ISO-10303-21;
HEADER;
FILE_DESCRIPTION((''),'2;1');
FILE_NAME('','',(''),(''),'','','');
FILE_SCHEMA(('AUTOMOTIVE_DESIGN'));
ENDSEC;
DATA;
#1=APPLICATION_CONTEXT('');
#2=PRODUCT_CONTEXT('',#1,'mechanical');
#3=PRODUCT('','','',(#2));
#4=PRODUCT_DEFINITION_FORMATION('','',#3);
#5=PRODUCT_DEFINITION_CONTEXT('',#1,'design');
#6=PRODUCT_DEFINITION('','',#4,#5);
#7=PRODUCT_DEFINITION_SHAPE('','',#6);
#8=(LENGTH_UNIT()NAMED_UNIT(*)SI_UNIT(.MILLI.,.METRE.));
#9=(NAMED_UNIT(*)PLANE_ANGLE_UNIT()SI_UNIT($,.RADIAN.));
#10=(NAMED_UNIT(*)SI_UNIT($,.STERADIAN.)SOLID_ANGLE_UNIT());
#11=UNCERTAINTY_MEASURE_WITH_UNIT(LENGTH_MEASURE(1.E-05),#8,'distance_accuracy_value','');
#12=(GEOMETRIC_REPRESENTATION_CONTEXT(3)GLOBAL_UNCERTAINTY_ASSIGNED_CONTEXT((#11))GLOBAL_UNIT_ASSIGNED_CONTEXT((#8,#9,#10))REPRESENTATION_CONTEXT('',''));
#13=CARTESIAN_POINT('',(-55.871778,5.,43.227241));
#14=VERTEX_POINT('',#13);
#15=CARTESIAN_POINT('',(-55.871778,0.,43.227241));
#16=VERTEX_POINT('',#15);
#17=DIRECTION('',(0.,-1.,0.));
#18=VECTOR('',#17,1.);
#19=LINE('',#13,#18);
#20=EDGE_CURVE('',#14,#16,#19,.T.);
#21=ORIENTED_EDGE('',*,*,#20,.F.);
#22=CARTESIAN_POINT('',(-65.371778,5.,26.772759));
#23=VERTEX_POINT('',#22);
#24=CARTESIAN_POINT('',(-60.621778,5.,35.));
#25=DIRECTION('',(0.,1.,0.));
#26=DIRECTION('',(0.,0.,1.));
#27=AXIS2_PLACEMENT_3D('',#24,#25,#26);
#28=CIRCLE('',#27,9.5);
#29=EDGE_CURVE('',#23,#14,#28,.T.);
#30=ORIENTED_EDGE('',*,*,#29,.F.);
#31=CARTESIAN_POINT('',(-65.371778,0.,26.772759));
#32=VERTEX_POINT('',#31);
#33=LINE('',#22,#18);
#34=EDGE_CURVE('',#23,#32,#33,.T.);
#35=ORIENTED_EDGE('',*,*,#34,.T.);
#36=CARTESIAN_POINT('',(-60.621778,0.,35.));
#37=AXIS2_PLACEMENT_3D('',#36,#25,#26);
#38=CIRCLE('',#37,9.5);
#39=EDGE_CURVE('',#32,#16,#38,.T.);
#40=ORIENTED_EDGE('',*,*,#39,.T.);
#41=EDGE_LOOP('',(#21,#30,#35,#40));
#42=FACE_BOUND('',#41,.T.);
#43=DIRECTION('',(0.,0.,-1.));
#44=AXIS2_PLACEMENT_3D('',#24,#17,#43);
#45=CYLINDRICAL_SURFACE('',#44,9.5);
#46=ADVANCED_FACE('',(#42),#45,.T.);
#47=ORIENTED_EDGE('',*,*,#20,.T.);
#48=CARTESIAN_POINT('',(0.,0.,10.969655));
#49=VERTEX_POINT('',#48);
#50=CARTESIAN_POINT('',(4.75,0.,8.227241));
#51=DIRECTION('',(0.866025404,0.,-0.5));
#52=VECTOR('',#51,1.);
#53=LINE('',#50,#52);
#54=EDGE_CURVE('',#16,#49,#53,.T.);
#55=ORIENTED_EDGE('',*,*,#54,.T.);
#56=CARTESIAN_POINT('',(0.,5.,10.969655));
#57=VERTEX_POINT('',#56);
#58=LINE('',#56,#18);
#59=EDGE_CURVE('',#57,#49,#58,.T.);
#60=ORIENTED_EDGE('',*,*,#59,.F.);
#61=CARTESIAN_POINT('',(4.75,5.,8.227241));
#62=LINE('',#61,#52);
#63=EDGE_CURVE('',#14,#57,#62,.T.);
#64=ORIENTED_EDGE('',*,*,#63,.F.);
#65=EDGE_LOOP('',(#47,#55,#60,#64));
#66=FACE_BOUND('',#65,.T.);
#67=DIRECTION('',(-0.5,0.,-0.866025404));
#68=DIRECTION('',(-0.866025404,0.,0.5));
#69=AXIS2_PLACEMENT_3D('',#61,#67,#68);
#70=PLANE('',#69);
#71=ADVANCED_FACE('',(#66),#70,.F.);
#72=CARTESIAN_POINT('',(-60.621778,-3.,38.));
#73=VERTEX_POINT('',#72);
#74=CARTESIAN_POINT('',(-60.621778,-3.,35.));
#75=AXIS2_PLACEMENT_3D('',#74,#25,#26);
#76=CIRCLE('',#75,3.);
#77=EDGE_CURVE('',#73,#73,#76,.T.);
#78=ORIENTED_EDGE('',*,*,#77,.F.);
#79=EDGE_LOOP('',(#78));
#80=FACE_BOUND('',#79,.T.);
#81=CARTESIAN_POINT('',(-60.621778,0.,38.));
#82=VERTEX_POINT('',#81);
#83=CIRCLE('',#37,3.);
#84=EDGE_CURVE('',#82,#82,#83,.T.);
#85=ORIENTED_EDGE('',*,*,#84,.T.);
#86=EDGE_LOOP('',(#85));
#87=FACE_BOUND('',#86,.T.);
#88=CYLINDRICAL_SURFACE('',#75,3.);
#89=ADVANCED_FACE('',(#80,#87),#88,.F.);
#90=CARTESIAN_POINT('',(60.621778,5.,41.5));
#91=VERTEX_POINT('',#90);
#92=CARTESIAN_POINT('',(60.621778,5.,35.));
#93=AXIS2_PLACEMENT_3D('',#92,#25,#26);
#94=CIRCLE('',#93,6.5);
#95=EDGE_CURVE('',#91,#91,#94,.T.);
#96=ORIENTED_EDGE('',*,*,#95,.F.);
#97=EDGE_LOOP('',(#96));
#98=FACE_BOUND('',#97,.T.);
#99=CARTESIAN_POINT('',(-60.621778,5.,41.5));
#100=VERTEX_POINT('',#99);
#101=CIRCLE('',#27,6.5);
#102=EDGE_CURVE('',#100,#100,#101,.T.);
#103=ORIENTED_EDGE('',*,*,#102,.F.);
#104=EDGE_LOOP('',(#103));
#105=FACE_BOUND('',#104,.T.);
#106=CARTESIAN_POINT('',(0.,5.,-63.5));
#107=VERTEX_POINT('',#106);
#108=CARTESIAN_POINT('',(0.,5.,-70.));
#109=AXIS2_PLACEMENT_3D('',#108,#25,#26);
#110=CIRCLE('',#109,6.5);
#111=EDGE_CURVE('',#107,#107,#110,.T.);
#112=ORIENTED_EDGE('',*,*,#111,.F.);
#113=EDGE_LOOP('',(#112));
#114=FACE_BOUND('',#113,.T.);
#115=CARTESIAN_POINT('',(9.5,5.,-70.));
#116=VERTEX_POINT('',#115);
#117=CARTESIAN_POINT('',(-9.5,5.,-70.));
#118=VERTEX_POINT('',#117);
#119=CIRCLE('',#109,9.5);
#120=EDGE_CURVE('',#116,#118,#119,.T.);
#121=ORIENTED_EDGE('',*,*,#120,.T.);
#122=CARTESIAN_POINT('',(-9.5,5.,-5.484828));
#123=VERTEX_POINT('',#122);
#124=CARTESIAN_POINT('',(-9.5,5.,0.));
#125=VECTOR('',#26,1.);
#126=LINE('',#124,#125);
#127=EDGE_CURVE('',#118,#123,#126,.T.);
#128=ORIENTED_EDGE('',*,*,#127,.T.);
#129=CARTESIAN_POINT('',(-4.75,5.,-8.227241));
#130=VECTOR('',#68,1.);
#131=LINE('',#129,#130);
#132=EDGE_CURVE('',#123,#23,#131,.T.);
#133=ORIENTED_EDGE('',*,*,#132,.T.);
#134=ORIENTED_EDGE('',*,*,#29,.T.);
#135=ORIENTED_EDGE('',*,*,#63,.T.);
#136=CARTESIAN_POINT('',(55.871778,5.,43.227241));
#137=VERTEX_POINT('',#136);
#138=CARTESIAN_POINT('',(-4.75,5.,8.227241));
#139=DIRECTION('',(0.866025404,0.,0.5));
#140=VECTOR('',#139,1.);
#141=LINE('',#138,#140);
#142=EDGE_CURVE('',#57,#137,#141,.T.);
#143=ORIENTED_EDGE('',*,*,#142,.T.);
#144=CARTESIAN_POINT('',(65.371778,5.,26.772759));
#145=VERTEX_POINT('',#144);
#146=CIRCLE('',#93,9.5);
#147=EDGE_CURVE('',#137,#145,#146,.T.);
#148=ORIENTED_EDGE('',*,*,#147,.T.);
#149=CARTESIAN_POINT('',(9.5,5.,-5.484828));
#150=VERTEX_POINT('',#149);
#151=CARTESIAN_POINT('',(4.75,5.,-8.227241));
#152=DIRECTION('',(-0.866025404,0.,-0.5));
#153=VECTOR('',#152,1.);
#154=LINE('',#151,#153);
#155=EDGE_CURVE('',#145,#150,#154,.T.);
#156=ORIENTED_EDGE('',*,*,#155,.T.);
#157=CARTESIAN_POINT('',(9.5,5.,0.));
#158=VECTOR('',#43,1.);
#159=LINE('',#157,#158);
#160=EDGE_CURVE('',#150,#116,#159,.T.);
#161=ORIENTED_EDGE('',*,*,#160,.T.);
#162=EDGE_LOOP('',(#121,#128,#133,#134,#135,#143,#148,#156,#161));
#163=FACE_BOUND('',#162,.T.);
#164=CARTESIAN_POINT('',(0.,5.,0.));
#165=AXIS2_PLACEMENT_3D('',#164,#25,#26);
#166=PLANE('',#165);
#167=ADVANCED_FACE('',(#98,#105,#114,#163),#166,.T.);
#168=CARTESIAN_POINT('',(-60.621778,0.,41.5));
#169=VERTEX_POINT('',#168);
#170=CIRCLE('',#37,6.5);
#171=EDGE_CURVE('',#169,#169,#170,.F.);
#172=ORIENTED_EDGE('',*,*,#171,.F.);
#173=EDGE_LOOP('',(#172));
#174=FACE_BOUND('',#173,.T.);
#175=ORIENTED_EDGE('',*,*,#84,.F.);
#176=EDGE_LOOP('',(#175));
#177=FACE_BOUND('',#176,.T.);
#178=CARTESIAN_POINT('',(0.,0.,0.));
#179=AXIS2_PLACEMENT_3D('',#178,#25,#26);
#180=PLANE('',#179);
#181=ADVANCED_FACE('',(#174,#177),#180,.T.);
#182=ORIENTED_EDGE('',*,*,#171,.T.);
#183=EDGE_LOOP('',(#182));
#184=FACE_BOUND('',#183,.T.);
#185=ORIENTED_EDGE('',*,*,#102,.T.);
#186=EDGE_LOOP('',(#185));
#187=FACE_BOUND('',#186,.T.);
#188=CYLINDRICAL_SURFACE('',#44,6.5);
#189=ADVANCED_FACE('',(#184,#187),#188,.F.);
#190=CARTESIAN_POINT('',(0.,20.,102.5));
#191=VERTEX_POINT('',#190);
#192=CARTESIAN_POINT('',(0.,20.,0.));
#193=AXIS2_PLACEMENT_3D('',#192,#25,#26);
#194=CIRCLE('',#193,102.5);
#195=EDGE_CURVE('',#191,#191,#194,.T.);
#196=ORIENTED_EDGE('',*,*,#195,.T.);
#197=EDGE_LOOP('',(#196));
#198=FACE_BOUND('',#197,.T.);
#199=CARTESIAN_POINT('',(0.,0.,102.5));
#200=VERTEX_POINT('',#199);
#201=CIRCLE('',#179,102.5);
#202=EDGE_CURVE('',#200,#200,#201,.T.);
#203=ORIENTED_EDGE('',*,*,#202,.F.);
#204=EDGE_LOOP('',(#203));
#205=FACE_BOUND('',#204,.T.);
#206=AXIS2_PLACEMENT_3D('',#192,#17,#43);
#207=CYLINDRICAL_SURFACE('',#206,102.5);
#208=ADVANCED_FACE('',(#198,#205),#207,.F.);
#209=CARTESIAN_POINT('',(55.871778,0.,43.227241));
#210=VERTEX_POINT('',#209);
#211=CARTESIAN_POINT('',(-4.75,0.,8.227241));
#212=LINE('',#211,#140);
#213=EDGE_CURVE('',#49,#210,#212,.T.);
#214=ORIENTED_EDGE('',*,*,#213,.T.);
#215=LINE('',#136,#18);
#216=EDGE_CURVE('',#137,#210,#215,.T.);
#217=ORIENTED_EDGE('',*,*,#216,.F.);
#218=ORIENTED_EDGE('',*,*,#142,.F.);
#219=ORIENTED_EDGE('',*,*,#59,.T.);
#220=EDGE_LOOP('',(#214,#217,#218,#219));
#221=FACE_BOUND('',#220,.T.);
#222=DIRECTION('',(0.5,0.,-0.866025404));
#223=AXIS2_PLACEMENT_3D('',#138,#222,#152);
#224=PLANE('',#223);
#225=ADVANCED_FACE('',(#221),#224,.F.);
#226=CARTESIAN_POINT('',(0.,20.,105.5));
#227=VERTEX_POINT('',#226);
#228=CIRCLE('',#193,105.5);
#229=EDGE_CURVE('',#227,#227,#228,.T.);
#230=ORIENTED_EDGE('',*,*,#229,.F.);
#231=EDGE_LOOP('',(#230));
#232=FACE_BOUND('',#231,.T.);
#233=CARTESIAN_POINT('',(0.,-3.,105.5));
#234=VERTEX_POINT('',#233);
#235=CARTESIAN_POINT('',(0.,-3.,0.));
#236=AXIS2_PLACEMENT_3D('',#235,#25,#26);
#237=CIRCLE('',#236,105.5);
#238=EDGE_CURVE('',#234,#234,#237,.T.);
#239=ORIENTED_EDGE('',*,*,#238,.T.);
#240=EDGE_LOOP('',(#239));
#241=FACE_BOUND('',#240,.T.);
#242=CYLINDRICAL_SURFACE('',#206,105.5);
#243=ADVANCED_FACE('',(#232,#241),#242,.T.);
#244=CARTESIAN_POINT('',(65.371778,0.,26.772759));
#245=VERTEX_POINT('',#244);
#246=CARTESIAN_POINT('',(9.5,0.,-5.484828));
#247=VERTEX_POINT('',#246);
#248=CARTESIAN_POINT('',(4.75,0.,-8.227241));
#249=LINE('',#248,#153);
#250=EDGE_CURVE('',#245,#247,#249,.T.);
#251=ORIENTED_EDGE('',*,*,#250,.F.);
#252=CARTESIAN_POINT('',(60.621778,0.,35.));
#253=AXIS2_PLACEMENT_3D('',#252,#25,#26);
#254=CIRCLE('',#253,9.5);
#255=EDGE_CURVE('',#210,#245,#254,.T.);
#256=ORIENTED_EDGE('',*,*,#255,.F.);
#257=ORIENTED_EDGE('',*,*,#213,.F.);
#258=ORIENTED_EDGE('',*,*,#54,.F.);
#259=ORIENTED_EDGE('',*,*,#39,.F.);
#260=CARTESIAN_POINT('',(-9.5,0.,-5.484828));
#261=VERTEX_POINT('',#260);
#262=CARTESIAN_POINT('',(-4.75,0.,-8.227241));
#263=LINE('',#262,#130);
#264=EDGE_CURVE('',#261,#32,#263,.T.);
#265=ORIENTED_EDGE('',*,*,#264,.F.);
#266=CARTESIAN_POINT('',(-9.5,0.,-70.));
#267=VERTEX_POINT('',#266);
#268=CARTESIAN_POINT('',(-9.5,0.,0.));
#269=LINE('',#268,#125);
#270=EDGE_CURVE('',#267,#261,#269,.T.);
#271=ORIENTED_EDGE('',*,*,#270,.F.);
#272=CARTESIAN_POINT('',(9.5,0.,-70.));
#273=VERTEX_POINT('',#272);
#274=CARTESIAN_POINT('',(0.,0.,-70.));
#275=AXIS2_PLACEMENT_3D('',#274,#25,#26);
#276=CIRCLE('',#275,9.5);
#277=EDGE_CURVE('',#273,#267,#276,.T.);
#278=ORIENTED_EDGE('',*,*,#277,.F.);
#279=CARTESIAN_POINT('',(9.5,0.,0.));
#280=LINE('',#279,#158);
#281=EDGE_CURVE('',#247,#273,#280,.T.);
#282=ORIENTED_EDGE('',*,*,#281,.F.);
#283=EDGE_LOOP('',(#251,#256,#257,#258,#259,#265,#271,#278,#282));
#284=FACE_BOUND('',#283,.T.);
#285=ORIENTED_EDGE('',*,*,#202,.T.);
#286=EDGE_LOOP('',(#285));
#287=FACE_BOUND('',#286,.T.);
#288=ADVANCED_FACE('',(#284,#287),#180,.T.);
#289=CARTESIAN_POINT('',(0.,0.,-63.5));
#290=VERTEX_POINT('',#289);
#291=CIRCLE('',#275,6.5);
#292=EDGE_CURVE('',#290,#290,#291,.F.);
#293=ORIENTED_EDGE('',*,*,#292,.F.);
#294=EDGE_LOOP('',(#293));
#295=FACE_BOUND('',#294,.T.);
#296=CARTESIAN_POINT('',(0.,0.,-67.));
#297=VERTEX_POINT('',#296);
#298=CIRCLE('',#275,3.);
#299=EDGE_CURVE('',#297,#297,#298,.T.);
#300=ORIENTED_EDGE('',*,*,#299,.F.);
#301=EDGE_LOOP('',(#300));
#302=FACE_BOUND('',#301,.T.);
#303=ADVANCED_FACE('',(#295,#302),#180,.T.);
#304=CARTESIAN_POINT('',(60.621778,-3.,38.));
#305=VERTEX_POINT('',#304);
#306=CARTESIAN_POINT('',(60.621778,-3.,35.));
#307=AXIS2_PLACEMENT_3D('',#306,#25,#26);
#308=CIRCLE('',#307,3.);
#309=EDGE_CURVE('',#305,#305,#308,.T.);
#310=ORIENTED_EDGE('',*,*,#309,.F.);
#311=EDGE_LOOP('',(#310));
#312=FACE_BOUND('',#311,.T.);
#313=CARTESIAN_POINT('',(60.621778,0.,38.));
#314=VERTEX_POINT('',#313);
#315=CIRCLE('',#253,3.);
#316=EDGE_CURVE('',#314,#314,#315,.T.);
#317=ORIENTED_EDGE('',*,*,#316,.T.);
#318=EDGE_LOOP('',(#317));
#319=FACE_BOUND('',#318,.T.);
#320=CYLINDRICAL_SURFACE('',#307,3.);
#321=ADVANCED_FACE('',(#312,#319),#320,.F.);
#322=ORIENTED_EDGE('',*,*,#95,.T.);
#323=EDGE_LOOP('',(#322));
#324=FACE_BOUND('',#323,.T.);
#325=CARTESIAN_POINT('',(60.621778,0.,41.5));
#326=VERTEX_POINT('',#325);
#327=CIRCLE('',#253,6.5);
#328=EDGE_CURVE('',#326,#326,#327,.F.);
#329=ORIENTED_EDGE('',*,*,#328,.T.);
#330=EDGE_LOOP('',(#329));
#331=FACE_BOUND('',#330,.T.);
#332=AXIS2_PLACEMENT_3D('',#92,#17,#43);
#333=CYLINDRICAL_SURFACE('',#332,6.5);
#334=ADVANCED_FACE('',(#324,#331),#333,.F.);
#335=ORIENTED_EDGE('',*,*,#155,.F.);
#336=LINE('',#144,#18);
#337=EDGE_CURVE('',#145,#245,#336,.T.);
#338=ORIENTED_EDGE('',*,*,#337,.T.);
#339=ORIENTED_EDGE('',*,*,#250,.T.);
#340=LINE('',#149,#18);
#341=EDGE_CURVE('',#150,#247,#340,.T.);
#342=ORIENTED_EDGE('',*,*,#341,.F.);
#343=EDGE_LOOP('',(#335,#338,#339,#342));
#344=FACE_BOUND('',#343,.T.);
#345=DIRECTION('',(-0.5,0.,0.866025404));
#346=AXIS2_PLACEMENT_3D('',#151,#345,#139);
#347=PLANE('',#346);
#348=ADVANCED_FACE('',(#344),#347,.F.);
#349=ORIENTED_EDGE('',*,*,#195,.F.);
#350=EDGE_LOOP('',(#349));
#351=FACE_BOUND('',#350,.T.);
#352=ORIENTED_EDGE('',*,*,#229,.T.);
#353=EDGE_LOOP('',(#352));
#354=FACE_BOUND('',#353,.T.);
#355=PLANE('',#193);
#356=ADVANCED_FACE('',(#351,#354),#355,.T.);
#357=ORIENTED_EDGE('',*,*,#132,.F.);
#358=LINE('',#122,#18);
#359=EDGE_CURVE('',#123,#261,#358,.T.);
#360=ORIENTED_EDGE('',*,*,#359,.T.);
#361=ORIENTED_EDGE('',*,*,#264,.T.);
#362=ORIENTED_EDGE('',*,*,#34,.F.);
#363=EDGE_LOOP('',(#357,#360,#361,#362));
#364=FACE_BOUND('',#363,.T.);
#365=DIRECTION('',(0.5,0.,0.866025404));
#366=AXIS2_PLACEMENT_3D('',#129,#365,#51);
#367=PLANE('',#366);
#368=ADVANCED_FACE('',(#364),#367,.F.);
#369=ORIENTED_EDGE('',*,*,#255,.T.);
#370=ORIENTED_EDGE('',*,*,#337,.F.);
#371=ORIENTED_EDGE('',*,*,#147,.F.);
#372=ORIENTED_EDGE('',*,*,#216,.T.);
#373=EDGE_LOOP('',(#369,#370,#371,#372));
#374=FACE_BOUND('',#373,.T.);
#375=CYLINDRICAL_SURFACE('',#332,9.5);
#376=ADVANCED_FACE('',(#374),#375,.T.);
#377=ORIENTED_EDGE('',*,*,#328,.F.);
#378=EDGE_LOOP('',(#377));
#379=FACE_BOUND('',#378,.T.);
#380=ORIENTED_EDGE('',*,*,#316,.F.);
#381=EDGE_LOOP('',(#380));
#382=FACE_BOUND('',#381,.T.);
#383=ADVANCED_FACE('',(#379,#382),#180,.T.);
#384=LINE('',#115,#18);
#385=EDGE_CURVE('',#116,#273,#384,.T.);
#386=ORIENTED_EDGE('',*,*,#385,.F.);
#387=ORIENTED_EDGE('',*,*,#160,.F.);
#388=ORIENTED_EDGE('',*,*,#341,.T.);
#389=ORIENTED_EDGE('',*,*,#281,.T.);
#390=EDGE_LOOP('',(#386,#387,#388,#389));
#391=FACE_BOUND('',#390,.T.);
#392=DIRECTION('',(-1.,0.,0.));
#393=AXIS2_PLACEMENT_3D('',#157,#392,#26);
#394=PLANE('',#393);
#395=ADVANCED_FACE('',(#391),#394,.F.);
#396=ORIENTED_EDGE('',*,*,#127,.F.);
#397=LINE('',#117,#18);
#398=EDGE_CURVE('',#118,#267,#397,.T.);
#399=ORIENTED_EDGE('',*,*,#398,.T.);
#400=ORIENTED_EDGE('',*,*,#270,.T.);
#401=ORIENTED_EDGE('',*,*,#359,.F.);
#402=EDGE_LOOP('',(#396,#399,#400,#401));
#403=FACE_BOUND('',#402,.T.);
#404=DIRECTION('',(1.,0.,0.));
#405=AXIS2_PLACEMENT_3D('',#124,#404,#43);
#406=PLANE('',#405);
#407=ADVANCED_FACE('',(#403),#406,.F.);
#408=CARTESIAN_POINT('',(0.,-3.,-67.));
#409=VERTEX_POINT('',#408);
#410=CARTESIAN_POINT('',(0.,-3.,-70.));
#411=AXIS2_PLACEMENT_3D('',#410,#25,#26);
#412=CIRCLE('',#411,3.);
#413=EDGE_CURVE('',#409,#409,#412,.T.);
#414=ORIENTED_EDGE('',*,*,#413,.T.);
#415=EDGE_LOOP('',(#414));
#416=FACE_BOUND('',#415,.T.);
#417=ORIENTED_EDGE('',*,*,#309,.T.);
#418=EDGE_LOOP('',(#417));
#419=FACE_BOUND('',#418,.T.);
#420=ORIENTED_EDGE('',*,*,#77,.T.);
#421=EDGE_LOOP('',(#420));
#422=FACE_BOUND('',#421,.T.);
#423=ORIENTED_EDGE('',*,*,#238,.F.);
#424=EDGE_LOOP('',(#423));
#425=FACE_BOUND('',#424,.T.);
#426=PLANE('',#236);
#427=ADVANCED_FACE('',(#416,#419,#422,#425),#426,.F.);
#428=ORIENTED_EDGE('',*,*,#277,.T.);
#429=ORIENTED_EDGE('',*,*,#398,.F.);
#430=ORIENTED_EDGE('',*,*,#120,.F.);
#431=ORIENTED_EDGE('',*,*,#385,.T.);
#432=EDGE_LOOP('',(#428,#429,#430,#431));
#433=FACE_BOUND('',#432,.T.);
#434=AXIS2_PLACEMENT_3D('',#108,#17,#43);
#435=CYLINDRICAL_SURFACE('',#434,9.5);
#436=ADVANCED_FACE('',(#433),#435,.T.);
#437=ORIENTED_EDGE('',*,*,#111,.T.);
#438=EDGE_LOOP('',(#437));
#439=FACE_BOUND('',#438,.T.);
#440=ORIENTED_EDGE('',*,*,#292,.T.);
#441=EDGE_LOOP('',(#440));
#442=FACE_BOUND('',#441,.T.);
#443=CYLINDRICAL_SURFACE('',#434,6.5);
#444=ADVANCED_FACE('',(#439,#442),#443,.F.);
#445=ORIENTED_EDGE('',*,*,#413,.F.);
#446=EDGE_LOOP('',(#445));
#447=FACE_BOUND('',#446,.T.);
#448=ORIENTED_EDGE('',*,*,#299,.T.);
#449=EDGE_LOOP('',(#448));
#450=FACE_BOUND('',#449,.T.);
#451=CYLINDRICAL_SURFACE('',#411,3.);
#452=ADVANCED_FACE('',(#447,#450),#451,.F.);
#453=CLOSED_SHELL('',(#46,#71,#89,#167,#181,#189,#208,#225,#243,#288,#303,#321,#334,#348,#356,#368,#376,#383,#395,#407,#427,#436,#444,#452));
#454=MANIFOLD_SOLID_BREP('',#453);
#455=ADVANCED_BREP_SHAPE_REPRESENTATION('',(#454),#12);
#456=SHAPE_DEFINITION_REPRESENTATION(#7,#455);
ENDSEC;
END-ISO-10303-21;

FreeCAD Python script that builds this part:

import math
import FreeCAD as App
import Part
import Sketcher

V = App.Vector


def faces_at(feature, points):
    """Names of the faces that lie closest to the given points."""
    faces = feature.Shape.Faces
    near = lambda p: min(range(len(faces)), key=lambda i: faces[i].distToShape(Part.Vertex(*p))[0])
    return sorted({f"Face{near(p) + 1}" for p in points})

doc = App.newDocument("Part")
params = doc.addObject("Spreadsheet::Sheet", "Params")
for row, (alias, value) in enumerate([
    ("sketch1_diameter", "205 mm"),
    ("pad1_length", "20 mm"),
    ("thickness_wall", "3 mm"),
    ("sketch2_diameter", "13 mm"),
    ("sketch2_radius", "9.5 mm"),
    ("pad2_length", "5 mm"),
    ("sketch3_diameter", "6 mm"),
], start=1):
    params.set(f"A{row}", alias)
    params.set(f"B{row}", "=" + value)
    params.setAlias(f"B{row}", alias)

body = doc.addObject("PartDesign::Body", "Body")

sketch1 = doc.addObject("Sketcher::SketchObject", "Sketch")
body.addObject(sketch1)
sketch1.AttachmentSupport = (doc.XZ_Plane, [""])
sketch1.MapMode = "FlatFace"
sketch1.addGeometry(Part.Circle(V(0, 0, 0), V(0, 0, 1), 102), False)
sketch1.addConstraint([
    Sketcher.Constraint("Coincident", 0, 3, -1, 1),
    Sketcher.Constraint("Diameter", 0, 205.0),
])
sketch1.setExpression("Constraints[1]", "Params.sketch1_diameter")
pad1 = doc.addObject("PartDesign::Pad", "Pad")
body.addObject(pad1)
pad1.Profile = sketch1
pad1.setExpression("Length", "Params.pad1_length")
pad1.Reversed = True
doc.recompute()

thickness = doc.addObject("PartDesign::Thickness", "Thickness")
body.addObject(thickness)
thickness.Base = (pad1, faces_at(pad1, [(0, 20, 0)]))
thickness.setExpression("Value", "Params.thickness_wall")
thickness.Reversed = False
thickness.Join = "Intersection"

sketch2 = doc.addObject("Sketcher::SketchObject", "Sketch001")
body.addObject(sketch2)
sketch2.AttachmentSupport = (doc.XZ_Plane, [""])
sketch2.MapMode = "FlatFace"
sketch2.addGeometry([
    Part.ArcOfCircle(Part.Circle(V(0, -70, 0), V(0, 0, 1), 10), math.radians(180), math.radians(360)),
    Part.LineSegment(V(-10, -70, 0), V(-10, -5, 0)),
    Part.LineSegment(V(-10, -5, 0), V(-65, 27, 0)),
    Part.ArcOfCircle(Part.Circle(V(-61, 35, 0), V(0, 0, 1), 10), math.radians(60), math.radians(240)),
    Part.LineSegment(V(-56, 43, 0), V(0, 11, 0)),
    Part.LineSegment(V(0, 11, 0), V(56, 43, 0)),
    Part.ArcOfCircle(Part.Circle(V(61, 35, 0), V(0, 0, 1), 10), math.radians(-60), math.radians(120)),
    Part.LineSegment(V(65, 27, 0), V(10, -5, 0)),
    Part.LineSegment(V(10, -5, 0), V(10, -70, 0)),
    Part.Circle(V(-61, 35, 0), V(0, 0, 1), 6),
    Part.Circle(V(61, 35, 0), V(0, 0, 1), 6),
    Part.Circle(V(0, -70, 0), V(0, 0, 1), 6),
], False)
sketch2.addConstraint([
    Sketcher.Constraint("Tangent", 0, 1, 1, 1),
    Sketcher.Constraint("Coincident", 1, 2, 2, 1),
    Sketcher.Constraint("Tangent", 2, 2, 3, 2),
    Sketcher.Constraint("Tangent", 3, 1, 4, 1),
    Sketcher.Constraint("Coincident", 4, 2, 5, 1),
    Sketcher.Constraint("Tangent", 5, 2, 6, 2),
    Sketcher.Constraint("Tangent", 6, 1, 7, 1),
    Sketcher.Constraint("Coincident", 7, 2, 8, 1),
    Sketcher.Constraint("Tangent", 8, 2, 0, 2),
    Sketcher.Constraint("Vertical", 1),
    Sketcher.Constraint("Vertical", 8),
    Sketcher.Constraint("Coincident", 9, 3, 3, 3),
    Sketcher.Constraint("Coincident", 10, 3, 6, 3),
    Sketcher.Constraint("Coincident", 11, 3, 0, 3),
    Sketcher.Constraint("Equal", 0, 3),
    Sketcher.Constraint("Equal", 3, 6),
    Sketcher.Constraint("Equal", 9, 10),
    Sketcher.Constraint("Equal", 10, 11),
    Sketcher.Constraint("Symmetric", 3, 3, 6, 3, -2),
    Sketcher.Constraint("Symmetric", 1, 2, 7, 2, -2),
    Sketcher.Constraint("PointOnObject", 4, 2, -2),
    Sketcher.Constraint("Parallel", 2, 4),
    Sketcher.Constraint("Equal", 2, 4),
    Sketcher.Constraint("Diameter", 9, 13.0),
    Sketcher.Constraint("Radius", 0, 9.5),
    Sketcher.Constraint("DistanceY", 0, 3, -1, 1, 70.0),
    Sketcher.Constraint("DistanceY", -1, 1, 3, 3, 35.0),
    Sketcher.Constraint("DistanceY", 1, 1, 1, 2, 64.515172),
])
sketch2.setExpression("Constraints[23]", "Params.sketch2_diameter")
sketch2.setExpression("Constraints[24]", "Params.sketch2_radius")
pad2 = doc.addObject("PartDesign::Pad", "Pad001")
body.addObject(pad2)
pad2.Profile = sketch2
pad2.setExpression("Length", "Params.pad2_length")
pad2.Reversed = True

sketch3 = doc.addObject("Sketcher::SketchObject", "Sketch002")
body.addObject(sketch3)
sketch3.AttachmentSupport = (doc.XZ_Plane, [""])
sketch3.MapMode = "FlatFace"
sketch3.addGeometry([
    Part.Circle(V(0, -70, 0), V(0, 0, 1), 3),
    Part.Circle(V(60.6, 35, 0), V(0, 0, 1), 3),
    Part.Circle(V(-60.6, 35, 0), V(0, 0, 1), 3),
], False)
sketch3.addConstraint([
    Sketcher.Constraint("Equal", 0, 1),
    Sketcher.Constraint("Equal", 1, 2),
    Sketcher.Constraint("Symmetric", 1, 3, 2, 3, -2),
    Sketcher.Constraint("PointOnObject", 0, 3, -2),
    Sketcher.Constraint("Diameter", 0, 6.0),
    Sketcher.Constraint("DistanceY", 0, 3, -1, 1, 70.0),
    Sketcher.Constraint("DistanceY", -1, 1, 1, 3, 35.0),
    Sketcher.Constraint("DistanceX", -1, 1, 1, 3, 60.621778),
])
sketch3.setExpression("Constraints[4]", "Params.sketch3_diameter")
pocket1 = doc.addObject("PartDesign::Pocket", "Pocket")
body.addObject(pocket1)
pocket1.Profile = sketch3
pocket1.Type = "ThroughAll"
pocket1.Midplane = True

doc.recompute()
